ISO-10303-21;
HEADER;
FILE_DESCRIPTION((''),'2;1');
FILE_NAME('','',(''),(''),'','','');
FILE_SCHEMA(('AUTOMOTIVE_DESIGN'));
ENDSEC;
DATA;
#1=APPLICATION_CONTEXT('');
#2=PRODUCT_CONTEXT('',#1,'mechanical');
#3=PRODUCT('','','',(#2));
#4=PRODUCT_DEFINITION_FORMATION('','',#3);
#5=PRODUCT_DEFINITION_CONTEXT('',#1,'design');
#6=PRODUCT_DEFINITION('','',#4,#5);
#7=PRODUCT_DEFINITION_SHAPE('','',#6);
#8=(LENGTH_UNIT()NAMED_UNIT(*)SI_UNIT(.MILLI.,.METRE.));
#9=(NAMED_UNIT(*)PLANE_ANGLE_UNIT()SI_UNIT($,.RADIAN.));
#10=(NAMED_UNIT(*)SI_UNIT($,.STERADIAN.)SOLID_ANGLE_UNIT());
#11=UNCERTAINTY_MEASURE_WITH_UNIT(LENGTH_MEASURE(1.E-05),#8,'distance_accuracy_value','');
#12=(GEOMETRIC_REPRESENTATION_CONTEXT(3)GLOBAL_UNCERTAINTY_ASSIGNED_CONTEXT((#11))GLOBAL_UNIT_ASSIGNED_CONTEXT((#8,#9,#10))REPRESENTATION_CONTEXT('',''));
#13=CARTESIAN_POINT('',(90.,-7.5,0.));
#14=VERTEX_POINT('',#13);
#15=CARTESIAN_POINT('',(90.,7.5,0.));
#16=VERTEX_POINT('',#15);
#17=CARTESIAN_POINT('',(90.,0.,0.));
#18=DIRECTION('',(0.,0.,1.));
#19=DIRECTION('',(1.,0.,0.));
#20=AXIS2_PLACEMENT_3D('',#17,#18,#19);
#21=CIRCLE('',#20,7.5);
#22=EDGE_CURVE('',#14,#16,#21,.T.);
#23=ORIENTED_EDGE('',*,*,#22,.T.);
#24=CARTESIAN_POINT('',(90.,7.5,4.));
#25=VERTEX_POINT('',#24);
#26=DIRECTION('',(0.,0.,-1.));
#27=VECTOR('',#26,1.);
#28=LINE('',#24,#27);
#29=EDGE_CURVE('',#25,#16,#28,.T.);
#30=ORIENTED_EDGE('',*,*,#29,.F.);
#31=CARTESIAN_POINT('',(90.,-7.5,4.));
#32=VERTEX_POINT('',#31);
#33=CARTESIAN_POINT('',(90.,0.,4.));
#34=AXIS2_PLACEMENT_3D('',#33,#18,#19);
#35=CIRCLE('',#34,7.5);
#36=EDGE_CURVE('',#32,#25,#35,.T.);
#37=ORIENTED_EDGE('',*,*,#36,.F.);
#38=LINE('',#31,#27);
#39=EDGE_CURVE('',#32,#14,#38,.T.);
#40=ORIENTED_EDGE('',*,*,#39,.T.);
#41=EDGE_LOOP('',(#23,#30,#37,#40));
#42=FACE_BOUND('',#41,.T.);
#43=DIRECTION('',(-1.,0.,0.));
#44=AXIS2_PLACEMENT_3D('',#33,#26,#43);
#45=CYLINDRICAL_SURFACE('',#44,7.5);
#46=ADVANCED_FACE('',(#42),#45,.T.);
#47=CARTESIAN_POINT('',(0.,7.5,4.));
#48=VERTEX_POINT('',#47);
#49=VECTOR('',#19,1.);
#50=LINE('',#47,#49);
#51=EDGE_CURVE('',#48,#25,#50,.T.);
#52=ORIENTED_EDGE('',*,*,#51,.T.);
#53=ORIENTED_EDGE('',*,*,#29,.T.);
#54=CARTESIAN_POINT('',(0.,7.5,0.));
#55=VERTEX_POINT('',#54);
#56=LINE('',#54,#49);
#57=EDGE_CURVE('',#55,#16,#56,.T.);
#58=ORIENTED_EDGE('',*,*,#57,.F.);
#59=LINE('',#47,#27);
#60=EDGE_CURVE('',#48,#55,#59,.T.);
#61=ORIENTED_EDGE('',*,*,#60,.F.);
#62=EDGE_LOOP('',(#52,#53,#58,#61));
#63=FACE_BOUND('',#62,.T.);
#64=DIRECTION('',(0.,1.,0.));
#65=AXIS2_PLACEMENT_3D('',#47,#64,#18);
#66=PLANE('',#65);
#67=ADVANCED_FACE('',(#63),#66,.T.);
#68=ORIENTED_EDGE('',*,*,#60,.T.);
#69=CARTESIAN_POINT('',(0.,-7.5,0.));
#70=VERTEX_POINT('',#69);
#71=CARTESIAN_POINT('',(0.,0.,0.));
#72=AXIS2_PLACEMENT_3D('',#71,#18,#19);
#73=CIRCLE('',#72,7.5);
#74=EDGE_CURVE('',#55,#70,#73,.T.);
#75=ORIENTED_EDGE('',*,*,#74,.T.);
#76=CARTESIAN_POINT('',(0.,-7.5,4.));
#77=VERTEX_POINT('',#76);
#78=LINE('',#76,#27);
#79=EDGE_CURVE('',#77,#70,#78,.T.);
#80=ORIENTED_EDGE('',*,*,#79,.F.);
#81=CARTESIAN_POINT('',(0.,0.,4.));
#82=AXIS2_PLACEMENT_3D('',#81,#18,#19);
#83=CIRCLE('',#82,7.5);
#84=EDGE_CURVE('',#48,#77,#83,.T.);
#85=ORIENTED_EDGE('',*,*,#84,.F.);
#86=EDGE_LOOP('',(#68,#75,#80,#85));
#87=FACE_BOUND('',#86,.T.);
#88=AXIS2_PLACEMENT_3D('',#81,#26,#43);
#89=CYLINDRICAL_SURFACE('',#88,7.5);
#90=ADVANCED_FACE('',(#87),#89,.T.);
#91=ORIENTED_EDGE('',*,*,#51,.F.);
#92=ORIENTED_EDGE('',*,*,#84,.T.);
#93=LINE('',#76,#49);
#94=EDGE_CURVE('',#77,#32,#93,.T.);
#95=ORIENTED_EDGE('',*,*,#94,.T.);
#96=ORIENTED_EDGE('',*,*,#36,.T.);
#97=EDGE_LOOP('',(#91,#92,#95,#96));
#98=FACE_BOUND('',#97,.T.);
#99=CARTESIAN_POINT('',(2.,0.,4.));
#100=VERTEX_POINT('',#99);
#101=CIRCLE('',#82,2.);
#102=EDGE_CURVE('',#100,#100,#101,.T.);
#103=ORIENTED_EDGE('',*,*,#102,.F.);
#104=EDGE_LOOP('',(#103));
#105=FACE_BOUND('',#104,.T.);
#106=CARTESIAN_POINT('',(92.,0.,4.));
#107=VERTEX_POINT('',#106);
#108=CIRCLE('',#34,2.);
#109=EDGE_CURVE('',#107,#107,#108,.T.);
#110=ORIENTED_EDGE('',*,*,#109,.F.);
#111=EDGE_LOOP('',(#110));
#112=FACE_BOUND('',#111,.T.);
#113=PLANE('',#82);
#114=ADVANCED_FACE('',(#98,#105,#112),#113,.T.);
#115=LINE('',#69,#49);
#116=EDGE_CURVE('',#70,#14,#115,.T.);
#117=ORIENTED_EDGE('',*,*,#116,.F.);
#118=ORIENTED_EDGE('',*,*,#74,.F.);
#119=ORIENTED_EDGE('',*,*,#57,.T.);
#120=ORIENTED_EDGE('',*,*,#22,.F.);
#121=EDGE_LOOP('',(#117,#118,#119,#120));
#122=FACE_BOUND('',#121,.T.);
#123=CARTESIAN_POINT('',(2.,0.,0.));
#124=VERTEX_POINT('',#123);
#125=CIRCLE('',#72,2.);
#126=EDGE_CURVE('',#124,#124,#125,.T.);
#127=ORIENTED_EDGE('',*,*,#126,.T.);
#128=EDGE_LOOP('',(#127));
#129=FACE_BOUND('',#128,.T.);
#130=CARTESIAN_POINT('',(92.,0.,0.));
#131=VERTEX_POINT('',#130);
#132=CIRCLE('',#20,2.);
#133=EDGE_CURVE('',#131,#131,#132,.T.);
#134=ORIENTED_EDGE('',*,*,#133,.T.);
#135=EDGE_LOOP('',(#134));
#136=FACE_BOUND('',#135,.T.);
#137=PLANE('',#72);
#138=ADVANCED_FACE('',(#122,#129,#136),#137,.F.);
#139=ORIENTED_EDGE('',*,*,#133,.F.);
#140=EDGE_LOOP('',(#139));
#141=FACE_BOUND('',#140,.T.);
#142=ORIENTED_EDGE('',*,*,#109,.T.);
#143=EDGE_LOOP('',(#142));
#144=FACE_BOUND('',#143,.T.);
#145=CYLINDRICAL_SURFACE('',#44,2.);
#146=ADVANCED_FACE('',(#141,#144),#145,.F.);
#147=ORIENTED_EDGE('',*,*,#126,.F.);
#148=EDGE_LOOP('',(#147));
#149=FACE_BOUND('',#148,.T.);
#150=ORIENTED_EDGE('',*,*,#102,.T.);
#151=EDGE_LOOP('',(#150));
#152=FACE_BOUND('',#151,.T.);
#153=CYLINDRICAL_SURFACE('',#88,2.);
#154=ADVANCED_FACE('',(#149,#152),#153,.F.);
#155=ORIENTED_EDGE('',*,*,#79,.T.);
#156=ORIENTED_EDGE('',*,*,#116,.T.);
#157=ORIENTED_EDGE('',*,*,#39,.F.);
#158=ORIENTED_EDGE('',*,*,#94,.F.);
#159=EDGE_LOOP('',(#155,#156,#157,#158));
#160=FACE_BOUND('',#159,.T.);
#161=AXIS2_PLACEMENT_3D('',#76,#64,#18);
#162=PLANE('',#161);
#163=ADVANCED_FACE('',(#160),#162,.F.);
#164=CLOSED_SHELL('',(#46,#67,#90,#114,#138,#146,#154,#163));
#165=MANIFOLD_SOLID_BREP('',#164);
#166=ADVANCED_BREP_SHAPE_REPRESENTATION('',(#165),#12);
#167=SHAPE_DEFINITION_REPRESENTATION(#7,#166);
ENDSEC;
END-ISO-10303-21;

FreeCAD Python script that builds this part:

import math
import FreeCAD as App
import Part
import Sketcher

V = App.Vector

doc = App.newDocument("Part")
body = doc.addObject("PartDesign::Body", "Body")

# Sketch on XY plane
sketch1 = body.newObject("Sketcher::SketchObject", "Sketch")
sketch1.AttachmentSupport = (doc.getObject("XY_Plane"), [""])
sketch1.MapMode = "FlatFace"
sketch1.addGeometry([
    Part.LineSegment(V(90, 7.5, 0), V(0, 7.5, 0)),  # 0
    Part.ArcOfCircle(Part.Circle(V(0, 0, 0), V(0, 0, 1), 7.5), math.radians(90), math.radians(270)),  # 1
    Part.LineSegment(V(0, -7.5, 0), V(90, -7.5, 0)),  # 2
    Part.ArcOfCircle(Part.Circle(V(90, 0, 0), V(0, 0, 1), 7.5), math.radians(-90), math.radians(90)),  # 3
    Part.Circle(V(90, 0, 0), V(0, 0, 1), 2),  # 4
    Part.Circle(V(0, 0, 0), V(0, 0, 1), 2),  # 5
], False)
sketch1.addConstraint([
    Sketcher.Constraint("Tangent", 0, 2, 1, 1),
    Sketcher.Constraint("Tangent", 1, 2, 2, 1),
    Sketcher.Constraint("Tangent", 2, 2, 3, 1),
    Sketcher.Constraint("Tangent", 3, 2, 0, 1),
    Sketcher.Constraint("Horizontal", 0),
    Sketcher.Constraint("Horizontal", 2),
    Sketcher.Constraint("Coincident", 1, 3, -1, 1),
    Sketcher.Constraint("Coincident", 5, 3, -1, 1),
    Sketcher.Constraint("Coincident", 4, 3, 3, 3),
    Sketcher.Constraint("Equal", 4, 5),
    Sketcher.Constraint("Diameter", 4, 4.0),
    Sketcher.Constraint("Radius", 1, 7.5),
    Sketcher.Constraint("DistanceX", 0, 2, 0, 1, 90.0),
])
pad1 = body.newObject("PartDesign::Pad", "Pad")
pad1.Profile = sketch1
pad1.Length = 4

doc.recompute()
